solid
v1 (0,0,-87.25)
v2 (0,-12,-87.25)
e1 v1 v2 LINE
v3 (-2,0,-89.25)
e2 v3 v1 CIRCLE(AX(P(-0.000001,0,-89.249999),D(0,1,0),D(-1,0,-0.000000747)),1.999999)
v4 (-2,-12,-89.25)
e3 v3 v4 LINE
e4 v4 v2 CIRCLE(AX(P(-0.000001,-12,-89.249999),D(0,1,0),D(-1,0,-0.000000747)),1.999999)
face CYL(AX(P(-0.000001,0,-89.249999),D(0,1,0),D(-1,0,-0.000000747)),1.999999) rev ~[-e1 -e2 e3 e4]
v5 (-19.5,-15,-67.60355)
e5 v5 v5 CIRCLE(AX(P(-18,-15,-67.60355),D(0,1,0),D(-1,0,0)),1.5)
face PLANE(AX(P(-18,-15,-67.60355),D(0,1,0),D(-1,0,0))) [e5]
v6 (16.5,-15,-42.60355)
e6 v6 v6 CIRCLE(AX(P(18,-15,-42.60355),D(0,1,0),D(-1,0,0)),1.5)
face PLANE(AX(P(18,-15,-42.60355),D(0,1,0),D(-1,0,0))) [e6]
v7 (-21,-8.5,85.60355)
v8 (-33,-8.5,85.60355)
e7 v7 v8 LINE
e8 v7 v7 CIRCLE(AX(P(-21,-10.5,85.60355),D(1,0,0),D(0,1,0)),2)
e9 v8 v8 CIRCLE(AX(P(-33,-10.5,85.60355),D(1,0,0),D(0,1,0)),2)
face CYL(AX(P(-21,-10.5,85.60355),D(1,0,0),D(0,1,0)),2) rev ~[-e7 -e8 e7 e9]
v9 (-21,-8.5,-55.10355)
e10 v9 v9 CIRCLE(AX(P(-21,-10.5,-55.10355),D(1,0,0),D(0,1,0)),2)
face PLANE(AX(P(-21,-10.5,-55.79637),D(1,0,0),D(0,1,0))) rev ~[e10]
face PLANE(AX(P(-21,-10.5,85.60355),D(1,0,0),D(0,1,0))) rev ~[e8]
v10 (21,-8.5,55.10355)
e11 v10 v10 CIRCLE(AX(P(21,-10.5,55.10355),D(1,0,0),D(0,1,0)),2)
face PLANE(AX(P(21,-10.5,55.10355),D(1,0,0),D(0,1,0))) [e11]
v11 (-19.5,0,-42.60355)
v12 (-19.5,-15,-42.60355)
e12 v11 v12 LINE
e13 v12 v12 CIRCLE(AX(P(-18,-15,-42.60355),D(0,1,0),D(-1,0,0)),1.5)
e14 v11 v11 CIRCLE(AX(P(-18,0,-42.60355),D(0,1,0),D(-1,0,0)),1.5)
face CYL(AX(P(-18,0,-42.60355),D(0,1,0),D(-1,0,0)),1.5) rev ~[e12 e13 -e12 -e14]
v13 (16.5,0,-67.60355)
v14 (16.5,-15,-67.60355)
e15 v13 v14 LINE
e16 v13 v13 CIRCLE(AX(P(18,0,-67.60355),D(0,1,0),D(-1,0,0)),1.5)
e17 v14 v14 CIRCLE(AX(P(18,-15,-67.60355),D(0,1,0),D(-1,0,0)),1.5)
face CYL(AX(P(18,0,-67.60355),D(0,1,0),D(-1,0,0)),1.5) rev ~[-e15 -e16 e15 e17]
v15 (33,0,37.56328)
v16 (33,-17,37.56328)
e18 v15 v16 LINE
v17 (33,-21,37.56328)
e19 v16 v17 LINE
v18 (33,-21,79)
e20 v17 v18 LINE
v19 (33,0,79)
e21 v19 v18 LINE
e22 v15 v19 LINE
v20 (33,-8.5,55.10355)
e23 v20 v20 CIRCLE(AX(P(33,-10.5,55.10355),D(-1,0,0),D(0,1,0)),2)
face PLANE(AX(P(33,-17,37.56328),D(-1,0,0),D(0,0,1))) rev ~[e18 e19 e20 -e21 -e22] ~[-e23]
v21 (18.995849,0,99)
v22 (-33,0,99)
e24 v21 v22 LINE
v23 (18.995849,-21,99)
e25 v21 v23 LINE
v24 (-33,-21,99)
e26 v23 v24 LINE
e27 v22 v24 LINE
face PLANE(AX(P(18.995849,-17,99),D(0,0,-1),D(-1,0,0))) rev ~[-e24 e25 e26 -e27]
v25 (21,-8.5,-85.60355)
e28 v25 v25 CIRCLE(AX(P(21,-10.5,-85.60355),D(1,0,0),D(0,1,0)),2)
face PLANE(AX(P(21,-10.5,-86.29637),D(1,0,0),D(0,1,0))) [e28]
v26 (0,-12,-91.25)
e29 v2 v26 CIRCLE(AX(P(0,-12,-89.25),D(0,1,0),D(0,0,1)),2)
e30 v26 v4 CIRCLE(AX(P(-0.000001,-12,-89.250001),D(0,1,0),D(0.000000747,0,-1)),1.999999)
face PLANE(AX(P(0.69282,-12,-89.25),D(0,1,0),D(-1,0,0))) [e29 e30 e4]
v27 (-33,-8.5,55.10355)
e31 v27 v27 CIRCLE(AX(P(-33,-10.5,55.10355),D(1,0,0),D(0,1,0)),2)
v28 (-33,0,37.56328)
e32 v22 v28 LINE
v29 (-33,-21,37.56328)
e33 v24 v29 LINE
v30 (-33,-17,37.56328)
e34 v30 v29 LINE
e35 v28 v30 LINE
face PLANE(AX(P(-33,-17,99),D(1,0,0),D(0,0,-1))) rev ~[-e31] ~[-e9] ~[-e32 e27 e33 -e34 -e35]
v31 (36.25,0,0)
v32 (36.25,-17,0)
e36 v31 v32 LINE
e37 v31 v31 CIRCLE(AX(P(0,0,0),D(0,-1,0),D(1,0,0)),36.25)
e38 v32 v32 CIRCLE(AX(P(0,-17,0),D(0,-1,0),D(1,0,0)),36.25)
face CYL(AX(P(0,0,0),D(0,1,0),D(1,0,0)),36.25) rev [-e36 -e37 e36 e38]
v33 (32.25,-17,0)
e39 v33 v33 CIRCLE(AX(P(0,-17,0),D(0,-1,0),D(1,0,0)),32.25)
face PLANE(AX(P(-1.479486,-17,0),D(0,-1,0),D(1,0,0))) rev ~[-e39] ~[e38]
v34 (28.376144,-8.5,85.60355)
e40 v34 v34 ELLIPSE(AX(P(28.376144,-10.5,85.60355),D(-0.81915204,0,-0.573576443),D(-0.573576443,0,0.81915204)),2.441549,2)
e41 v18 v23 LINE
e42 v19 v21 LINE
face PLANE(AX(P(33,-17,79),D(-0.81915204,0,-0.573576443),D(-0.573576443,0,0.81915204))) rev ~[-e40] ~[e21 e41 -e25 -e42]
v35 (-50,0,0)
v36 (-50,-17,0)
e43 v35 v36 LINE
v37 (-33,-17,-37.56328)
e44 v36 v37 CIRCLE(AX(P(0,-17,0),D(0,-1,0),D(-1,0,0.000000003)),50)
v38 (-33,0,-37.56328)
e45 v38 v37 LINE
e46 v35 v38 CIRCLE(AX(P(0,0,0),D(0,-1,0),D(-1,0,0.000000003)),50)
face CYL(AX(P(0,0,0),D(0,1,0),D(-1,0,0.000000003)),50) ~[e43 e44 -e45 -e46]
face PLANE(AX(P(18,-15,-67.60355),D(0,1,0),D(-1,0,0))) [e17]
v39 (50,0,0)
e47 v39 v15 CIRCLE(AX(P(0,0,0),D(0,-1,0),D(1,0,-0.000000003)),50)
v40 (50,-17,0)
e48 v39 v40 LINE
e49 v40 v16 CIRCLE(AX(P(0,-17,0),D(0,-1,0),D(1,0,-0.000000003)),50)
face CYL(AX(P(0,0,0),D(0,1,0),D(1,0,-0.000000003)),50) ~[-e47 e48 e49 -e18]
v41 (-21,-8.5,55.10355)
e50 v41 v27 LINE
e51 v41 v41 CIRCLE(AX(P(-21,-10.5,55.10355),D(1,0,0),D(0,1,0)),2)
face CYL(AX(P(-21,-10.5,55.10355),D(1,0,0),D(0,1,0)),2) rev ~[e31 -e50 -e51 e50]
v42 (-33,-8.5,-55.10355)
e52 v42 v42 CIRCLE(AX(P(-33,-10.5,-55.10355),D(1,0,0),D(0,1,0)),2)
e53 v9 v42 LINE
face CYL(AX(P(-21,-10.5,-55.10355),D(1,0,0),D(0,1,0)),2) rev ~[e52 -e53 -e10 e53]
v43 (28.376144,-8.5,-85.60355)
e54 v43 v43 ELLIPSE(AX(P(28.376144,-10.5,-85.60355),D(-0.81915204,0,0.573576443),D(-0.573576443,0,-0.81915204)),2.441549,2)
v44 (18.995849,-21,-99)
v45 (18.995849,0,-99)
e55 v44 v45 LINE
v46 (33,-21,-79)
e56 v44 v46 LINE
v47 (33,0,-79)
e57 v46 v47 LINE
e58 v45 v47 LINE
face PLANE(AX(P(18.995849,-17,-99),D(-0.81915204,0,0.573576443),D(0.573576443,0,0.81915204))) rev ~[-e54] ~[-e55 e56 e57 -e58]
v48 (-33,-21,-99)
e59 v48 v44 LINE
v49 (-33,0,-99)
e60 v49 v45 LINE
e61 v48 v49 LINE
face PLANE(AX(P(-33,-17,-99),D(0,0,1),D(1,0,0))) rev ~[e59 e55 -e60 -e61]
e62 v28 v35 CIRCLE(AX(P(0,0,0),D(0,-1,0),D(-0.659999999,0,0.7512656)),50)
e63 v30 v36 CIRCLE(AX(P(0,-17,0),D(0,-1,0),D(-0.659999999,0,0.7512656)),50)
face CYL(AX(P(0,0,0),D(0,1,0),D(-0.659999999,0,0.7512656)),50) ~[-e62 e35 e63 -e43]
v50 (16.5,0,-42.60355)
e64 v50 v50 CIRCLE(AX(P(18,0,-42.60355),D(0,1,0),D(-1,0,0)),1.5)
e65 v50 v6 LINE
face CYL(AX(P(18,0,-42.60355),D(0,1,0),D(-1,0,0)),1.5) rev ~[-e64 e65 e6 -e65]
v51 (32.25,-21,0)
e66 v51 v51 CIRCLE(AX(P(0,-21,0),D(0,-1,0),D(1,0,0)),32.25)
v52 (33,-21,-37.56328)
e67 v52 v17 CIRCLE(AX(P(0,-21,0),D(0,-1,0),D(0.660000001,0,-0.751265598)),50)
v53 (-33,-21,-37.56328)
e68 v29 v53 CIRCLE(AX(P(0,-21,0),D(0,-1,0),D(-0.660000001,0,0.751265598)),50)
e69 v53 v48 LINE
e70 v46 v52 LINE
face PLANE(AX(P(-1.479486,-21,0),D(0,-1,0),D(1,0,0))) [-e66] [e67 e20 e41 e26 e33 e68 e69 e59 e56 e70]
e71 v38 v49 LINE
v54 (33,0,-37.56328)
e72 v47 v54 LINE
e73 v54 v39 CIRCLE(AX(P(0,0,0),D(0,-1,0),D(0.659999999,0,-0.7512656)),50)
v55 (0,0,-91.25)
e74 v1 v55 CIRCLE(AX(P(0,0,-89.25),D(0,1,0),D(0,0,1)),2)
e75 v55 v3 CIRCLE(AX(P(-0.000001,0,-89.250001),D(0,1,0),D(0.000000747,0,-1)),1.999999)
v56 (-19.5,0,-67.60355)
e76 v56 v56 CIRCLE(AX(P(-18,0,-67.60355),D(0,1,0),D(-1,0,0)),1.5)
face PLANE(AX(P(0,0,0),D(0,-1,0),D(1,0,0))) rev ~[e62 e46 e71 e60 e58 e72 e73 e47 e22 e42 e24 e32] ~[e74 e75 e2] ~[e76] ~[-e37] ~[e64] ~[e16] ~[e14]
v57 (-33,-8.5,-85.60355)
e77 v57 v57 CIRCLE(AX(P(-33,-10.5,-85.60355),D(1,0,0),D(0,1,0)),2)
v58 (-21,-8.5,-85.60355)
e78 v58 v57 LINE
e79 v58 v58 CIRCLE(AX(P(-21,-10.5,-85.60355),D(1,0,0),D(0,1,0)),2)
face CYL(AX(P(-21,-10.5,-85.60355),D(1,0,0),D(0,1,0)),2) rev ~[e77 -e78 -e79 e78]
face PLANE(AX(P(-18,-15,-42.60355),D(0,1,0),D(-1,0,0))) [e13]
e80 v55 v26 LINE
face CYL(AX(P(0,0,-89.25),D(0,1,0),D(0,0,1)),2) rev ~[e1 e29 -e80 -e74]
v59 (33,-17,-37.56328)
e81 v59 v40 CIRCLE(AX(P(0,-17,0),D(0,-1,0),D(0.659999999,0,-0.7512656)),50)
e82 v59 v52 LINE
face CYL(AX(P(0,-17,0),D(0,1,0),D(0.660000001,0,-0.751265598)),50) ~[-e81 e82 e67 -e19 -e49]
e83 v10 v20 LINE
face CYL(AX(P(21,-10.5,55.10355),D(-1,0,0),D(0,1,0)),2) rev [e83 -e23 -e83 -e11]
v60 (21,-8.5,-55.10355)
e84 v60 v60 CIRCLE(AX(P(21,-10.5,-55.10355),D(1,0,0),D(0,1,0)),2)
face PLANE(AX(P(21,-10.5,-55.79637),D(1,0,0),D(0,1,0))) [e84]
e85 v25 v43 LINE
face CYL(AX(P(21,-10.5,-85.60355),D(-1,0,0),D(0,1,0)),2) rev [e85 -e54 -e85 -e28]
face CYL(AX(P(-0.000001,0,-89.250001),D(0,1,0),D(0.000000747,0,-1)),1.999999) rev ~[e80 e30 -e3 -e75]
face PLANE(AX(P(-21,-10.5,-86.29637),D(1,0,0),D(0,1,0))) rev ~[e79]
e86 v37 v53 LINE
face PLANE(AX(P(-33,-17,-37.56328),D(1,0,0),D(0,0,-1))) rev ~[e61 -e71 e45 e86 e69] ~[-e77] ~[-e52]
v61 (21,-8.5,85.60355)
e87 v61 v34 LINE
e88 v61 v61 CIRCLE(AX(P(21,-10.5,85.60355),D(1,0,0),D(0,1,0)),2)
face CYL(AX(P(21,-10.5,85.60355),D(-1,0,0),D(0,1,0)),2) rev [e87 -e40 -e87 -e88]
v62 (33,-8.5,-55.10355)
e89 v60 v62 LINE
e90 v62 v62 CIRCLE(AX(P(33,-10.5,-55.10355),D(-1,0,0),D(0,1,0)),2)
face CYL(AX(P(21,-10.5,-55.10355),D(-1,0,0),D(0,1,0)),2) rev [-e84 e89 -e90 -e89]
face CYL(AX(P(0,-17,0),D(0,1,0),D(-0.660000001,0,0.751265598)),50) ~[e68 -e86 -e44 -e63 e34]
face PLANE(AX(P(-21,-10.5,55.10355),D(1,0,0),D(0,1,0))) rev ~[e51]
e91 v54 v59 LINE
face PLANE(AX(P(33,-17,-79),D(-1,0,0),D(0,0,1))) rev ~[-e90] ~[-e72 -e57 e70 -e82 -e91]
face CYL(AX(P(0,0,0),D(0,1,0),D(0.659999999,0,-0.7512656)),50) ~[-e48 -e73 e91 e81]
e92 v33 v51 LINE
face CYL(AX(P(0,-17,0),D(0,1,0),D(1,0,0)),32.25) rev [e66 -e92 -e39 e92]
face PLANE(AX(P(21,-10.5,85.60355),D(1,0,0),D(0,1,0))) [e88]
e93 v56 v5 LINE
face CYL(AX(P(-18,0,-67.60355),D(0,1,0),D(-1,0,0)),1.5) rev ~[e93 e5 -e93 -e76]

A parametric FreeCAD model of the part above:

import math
import FreeCAD as App
import Part
import Sketcher

V = App.Vector
Q = App.Units.Quantity

doc = App.newDocument("Part")
body = doc.addObject("PartDesign::Body", "Body")

sketch1 = doc.addObject("Sketcher::SketchObject", "Sketch")
body.addObject(sketch1)
sketch1.AttachmentSupport = (doc.XZ_Plane, [""])
sketch1.MapMode = "FlatFace"
sketch1.addGeometry([
    Part.LineSegment(V(-33, -99, 0), V(19, -99, 0)),
    Part.LineSegment(V(19, -99, 0), V(33, -79, 0)),
    Part.LineSegment(V(33, -79, 0), V(33, -38, 0)),
    Part.ArcOfCircle(Part.Circle(V(0, 0, 0), V(0, 0, 1), 50), math.radians(-49), math.radians(0)),
    Part.ArcOfCircle(Part.Circle(V(0, 0, 0), V(0, 0, 1), 50), math.radians(0), math.radians(49)),
    Part.LineSegment(V(33, 38, 0), V(33, 79, 0)),
    Part.LineSegment(V(33, 79, 0), V(19, 99, 0)),
    Part.LineSegment(V(19, 99, 0), V(-33, 99, 0)),
    Part.LineSegment(V(-33, 99, 0), V(-33, 38, 0)),
    Part.ArcOfCircle(Part.Circle(V(0, 0, 0), V(0, 0, 1), 50), math.radians(131), math.radians(180)),
    Part.ArcOfCircle(Part.Circle(V(0, 0, 0), V(0, 0, 1), 50), math.radians(180), math.radians(229)),
    Part.LineSegment(V(-33, -38, 0), V(-33, -99, 0)),
    Part.Circle(V(0, 0, 0), V(0, 0, 1), 36),
], False)
sketch1.addConstraint([
    Sketcher.Constraint("Coincident", 0, 2, 1, 1),
    Sketcher.Constraint("Coincident", 1, 2, 2, 1),
    Sketcher.Constraint("Coincident", 2, 2, 3, 1),
    Sketcher.Constraint("Tangent", 3, 2, 4, 1),
    Sketcher.Constraint("Coincident", 4, 2, 5, 1),
    Sketcher.Constraint("Coincident", 5, 2, 6, 1),
    Sketcher.Constraint("Coincident", 6, 2, 7, 1),
    Sketcher.Constraint("Coincident", 7, 2, 8, 1),
    Sketcher.Constraint("Coincident", 8, 2, 9, 1),
    Sketcher.Constraint("Tangent", 9, 2, 10, 1),
    Sketcher.Constraint("Coincident", 10, 2, 11, 1),
    Sketcher.Constraint("Coincident", 11, 2, 0, 1),
    Sketcher.Constraint("Horizontal", 0),
    Sketcher.Constraint("Vertical", 2),
    Sketcher.Constraint("Vertical", 5),
    Sketcher.Constraint("Horizontal", 7),
    Sketcher.Constraint("Vertical", 8),
    Sketcher.Constraint("Vertical", 11),
    Sketcher.Constraint("Coincident", 3, 3, -1, 1),
    Sketcher.Constraint("Coincident", 9, 3, -1, 1),
    Sketcher.Constraint("Coincident", 12, 3, -1, 1),
    Sketcher.Constraint("Equal", 3, 4),
    Sketcher.Constraint("Equal", 4, 9),
    Sketcher.Constraint("Equal", 9, 10),
    Sketcher.Constraint("Symmetric", 1, 2, 5, 2, -1),
    Sketcher.Constraint("Symmetric", 0, 2, 6, 2, -1),
    Sketcher.Constraint("PointOnObject", 3, 2, -1),
    Sketcher.Constraint("PointOnObject", 9, 2, -1),
    Sketcher.Constraint("Horizontal", 4, 2, 8, 2),
    Sketcher.Constraint("Horizontal", 2, 2, 10, 2),
    Sketcher.Constraint("Radius", 3, Q("50 mm")),
    Sketcher.Constraint("Diameter", 12, Q("72.5 mm")),
    Sketcher.Constraint("Angle", 1, Q("55 deg")),
    Sketcher.Constraint("DistanceY", 0, 2, -1, 1, Q("99 mm")),
    Sketcher.Constraint("DistanceX", -1, 1, 1, 2, Q("33 mm")),
    Sketcher.Constraint("DistanceY", 1, 2, -1, 1, Q("79 mm")),
])
pad1 = doc.addObject("PartDesign::Pad", "Pad")
body.addObject(pad1)
pad1.Profile = sketch1
pad1.Length = 17

sketch2 = doc.addObject("Sketcher::SketchObject", "Sketch001")
body.addObject(sketch2)
sketch2.AttachmentSupport = (doc.XZ_Plane, [""])
sketch2.MapMode = "FlatFace"
sketch2.AttachmentOffset = App.Placement(V(0, 0, 17), App.Rotation())
sketch2.addGeometry([
    Part.LineSegment(V(33, -79, 0), V(33, -38, 0)),
    Part.ArcOfCircle(Part.Circle(V(0, 0, 0), V(0, 0, 1), 50), math.radians(-49), math.radians(49)),
    Part.LineSegment(V(33, 38, 0), V(33, 79, 0)),
    Part.LineSegment(V(33, 79, 0), V(19, 99, 0)),
    Part.LineSegment(V(19, 99, 0), V(-33, 99, 0)),
    Part.LineSegment(V(-33, 99, 0), V(-33, 38, 0)),
    Part.ArcOfCircle(Part.Circle(V(0, 0, 0), V(0, 0, 1), 50), math.radians(131), math.radians(229)),
    Part.LineSegment(V(-33, -38, 0), V(-33, -99, 0)),
    Part.LineSegment(V(-33, -99, 0), V(19, -99, 0)),
    Part.LineSegment(V(19, -99, 0), V(33, -79, 0)),
    Part.Circle(V(0, 0, 0), V(0, 0, 1), 32),
], False)
sketch2.addConstraint([
    Sketcher.Constraint("Coincident", 0, 2, 1, 1),
    Sketcher.Constraint("Coincident", 1, 2, 2, 1),
    Sketcher.Constraint("Coincident", 2, 2, 3, 1),
    Sketcher.Constraint("Coincident", 3, 2, 4, 1),
    Sketcher.Constraint("Coincident", 4, 2, 5, 1),
    Sketcher.Constraint("Coincident", 5, 2, 6, 1),
    Sketcher.Constraint("Coincident", 6, 2, 7, 1),
    Sketcher.Constraint("Coincident", 7, 2, 8, 1),
    Sketcher.Constraint("Coincident", 8, 2, 9, 1),
    Sketcher.Constraint("Coincident", 9, 2, 0, 1),
    Sketcher.Constraint("Vertical", 0),
    Sketcher.Constraint("Vertical", 2),
    Sketcher.Constraint("Horizontal", 4),
    Sketcher.Constraint("Vertical", 5),
    Sketcher.Constraint("Vertical", 7),
    Sketcher.Constraint("Horizontal", 8),
    Sketcher.Constraint("Coincident", 1, 3, -1, 1),
    Sketcher.Constraint("Coincident", 6, 3, -1, 1),
    Sketcher.Constraint("Coincident", 10, 3, -1, 1),
    Sketcher.Constraint("Equal", 1, 6),
    Sketcher.Constraint("Symmetric", 4, 2, 7, 2, -1),
    Sketcher.Constraint("Symmetric", 2, 2, 9, 2, -1),
    Sketcher.Constraint("Horizontal", 1, 2, 5, 2),
    Sketcher.Constraint("Vertical", 3, 2, 8, 2),
    Sketcher.Constraint("Radius", 1, Q("50 mm")),
    Sketcher.Constraint("Diameter", 10, Q("64.5 mm")),
    Sketcher.Constraint("Angle", 3, Q("125 deg")),
    Sketcher.Constraint("DistanceX", -1, 1, 0, 2, Q("33 mm")),
    Sketcher.Constraint("DistanceY", -1, 1, 2, 2, Q("79 mm")),
    Sketcher.Constraint("DistanceY", -1, 1, 3, 2, Q("99 mm")),
])
pad2 = doc.addObject("PartDesign::Pad", "Pad001")
body.addObject(pad2)
pad2.Profile = sketch2
pad2.Length = 4

sketch3 = doc.addObject("Sketcher::SketchObject", "Sketch002")
body.addObject(sketch3)
sketch3.AttachmentSupport = (doc.XZ_Plane, [""])
sketch3.MapMode = "FlatFace"
sketch3.addGeometry([
    Part.Circle(V(18, -42.6, 0), V(0, 0, 1), 1.5),
    Part.Circle(V(-18, -42.6, 0), V(0, 0, 1), 1.5),
    Part.Circle(V(-18, -67.6, 0), V(0, 0, 1), 1.5),
    Part.Circle(V(18, -67.6, 0), V(0, 0, 1), 1.5),
], False)
sketch3.addConstraint([
    Sketcher.Constraint("Equal", 0, 1),
    Sketcher.Constraint("Equal", 1, 2),
    Sketcher.Constraint("Equal", 2, 3),
    Sketcher.Constraint("Symmetric", 0, 3, 1, 3, -2),
    Sketcher.Constraint("Symmetric", 2, 3, 3, 3, -2),
    Sketcher.Constraint("Vertical", 1, 3, 2, 3),
    Sketcher.Constraint("Diameter", 0, Q("3 mm")),
    Sketcher.Constraint("DistanceX", -1, 1, 0, 3, Q("18 mm")),
    Sketcher.Constraint("DistanceY", 2, 3, 1, 3, Q("25 mm")),
    Sketcher.Constraint("DistanceY", 0, 3, -1, 1, Q("42.60355 mm")),
])
pocket1 = doc.addObject("PartDesign::Pocket", "Pocket")
body.addObject(pocket1)
pocket1.Profile = sketch3
pocket1.Length = 15
pocket1.Reversed = True

sketch4 = doc.addObject("Sketcher::SketchObject", "Sketch003")
body.addObject(sketch4)
sketch4.AttachmentSupport = (doc.YZ_Plane, [""])
sketch4.MapMode = "FlatFace"
sketch4.AttachmentOffset = App.Placement(V(0, 0, 21), App.Rotation())
sketch4.addGeometry([
    Part.Circle(V(-10.5, -85.6, 0), V(0, 0, 1), 2),
    Part.Circle(V(-10.5, -55.1, 0), V(0, 0, 1), 2),
    Part.Circle(V(-10.5, 55.1, 0), V(0, 0, 1), 2),
    Part.Circle(V(-10.5, 85.6, 0), V(0, 0, 1), 2),
], False)
sketch4.addConstraint([
    Sketcher.Constraint("Equal", 0, 1),
    Sketcher.Constraint("Equal", 1, 2),
    Sketcher.Constraint("Equal", 2, 3),
    Sketcher.Constraint("Symmetric", 1, 3, 2, 3, -1),
    Sketcher.Constraint("Symmetric", 0, 3, 3, 3, -1),
    Sketcher.Constraint("Vertical", 0, 3, 1, 3),
    Sketcher.Constraint("Diameter", 0, Q("4 mm")),
    Sketcher.Constraint("DistanceX", 0, 3, -1, 1, Q("10.5 mm")),
    Sketcher.Constraint("DistanceY", 0, 3, 1, 3, Q("30.5 mm")),
    Sketcher.Constraint("DistanceY", 1, 3, 2, 3, Q("110.2071 mm")),
])
pocket2 = doc.addObject("PartDesign::Pocket", "Pocket001")
body.addObject(pocket2)
pocket2.Profile = sketch4
pocket2.Length = 25
pocket2.Reversed = True

sketch5 = doc.addObject("Sketcher::SketchObject", "Sketch004")
body.addObject(sketch5)
sketch5.AttachmentSupport = (doc.YZ_Plane, [""])
sketch5.MapMode = "FlatFace"
sketch5.AttachmentOffset = App.Placement(V(0, 0, -21), App.Rotation())
sketch5.addGeometry([
    Part.Circle(V(-10.5, -85.6, 0), V(0, 0, 1), 2),
    Part.Circle(V(-10.5, -55.1, 0), V(0, 0, 1), 2),
    Part.Circle(V(-10.5, 55.1, 0), V(0, 0, 1), 2),
    Part.Circle(V(-10.5, 85.6, 0), V(0, 0, 1), 2),
], False)
sketch5.addConstraint([
    Sketcher.Constraint("Equal", 0, 1),
    Sketcher.Constraint("Equal", 1, 2),
    Sketcher.Constraint("Equal", 2, 3),
    Sketcher.Constraint("Symmetric", 1, 3, 2, 3, -1),
    Sketcher.Constraint("Symmetric", 0, 3, 3, 3, -1),
    Sketcher.Constraint("Vertical", 0, 3, 1, 3),
    Sketcher.Constraint("Diameter", 0, Q("4 mm")),
    Sketcher.Constraint("DistanceX", 0, 3, -1, 1, Q("10.5 mm")),
    Sketcher.Constraint("DistanceY", 0, 3, 1, 3, Q("30.5 mm")),
    Sketcher.Constraint("DistanceY", 1, 3, 2, 3, Q("110.2071 mm")),
])
pocket3 = doc.addObject("PartDesign::Pocket", "Pocket002")
body.addObject(pocket3)
pocket3.Profile = sketch5
pocket3.Length = 25

sketch6 = doc.addObject("Sketcher::SketchObject", "Sketch005")
body.addObject(sketch6)
sketch6.AttachmentSupport = (doc.XZ_Plane, [""])
sketch6.MapMode = "FlatFace"
sketch6.addGeometry([
    Part.ArcOfCircle(Part.Circle(V(0, -89.2, 0), V(0, 0, 1), 2), math.radians(-90), math.radians(90)),
    Part.ArcOfCircle(Part.Circle(V(0, -89.3, 0), V(0, 0, 1), 2), math.radians(180), math.radians(270)),
    Part.ArcOfCircle(Part.Circle(V(0, -89.2, 0), V(0, 0, 1), 2), math.radians(90), math.radians(180)),
], False)
sketch6.addConstraint([
    Sketcher.Constraint("Tangent", 0, 1, 1, 2),
    Sketcher.Constraint("Tangent", 1, 1, 2, 2),
    Sketcher.Constraint("Tangent", 2, 1, 0, 2),
    Sketcher.Constraint("PointOnObject", 0, 3, -2),
    Sketcher.Constraint("PointOnObject", 0, 1, -2),
    Sketcher.Constraint("PointOnObject", 2, 1, -2),
    Sketcher.Constraint("Horizontal", 2, 3, 1, 1),
    Sketcher.Constraint("Radius", 0, Q("2 mm")),
    Sketcher.Constraint("DistanceY", 0, 3, -1, 1, Q("89.25 mm")),
])
pocket4 = doc.addObject("PartDesign::Pocket", "Pocket003")
body.addObject(pocket4)
pocket4.Profile = sketch6
pocket4.Length = 12
pocket4.Reversed = True

doc.recompute()
